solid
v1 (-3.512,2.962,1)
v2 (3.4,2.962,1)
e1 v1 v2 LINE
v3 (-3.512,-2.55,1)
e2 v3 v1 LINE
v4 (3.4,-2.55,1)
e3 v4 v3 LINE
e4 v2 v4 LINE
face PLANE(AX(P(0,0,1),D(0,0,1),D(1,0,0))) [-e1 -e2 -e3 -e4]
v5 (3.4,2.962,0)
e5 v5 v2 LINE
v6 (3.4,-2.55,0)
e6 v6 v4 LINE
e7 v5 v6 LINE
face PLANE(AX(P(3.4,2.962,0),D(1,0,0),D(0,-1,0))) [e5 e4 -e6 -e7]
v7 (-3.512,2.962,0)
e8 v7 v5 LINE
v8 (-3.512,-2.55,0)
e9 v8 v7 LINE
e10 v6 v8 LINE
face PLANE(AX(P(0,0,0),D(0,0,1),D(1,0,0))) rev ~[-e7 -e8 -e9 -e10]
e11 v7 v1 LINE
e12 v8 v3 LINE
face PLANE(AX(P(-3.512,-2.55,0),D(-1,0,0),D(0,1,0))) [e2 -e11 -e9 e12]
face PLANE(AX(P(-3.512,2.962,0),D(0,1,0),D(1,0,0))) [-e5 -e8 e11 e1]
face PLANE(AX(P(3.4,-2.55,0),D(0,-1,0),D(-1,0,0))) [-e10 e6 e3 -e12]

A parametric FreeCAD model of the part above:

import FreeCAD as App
import Part
import Sketcher

V = App.Vector


def add_polygon(sketch, points):
    """Adds a closed chain of lines whose ends are joined by coincident constraints."""
    first, n = sketch.GeometryCount, len(points)
    for a, b in zip(points, points[1:] + points[:1]):
        sketch.addGeometry(Part.LineSegment(App.Vector(*a, 0), App.Vector(*b, 0)), False)
    for i in range(n):
        sketch.addConstraint(Sketcher.Constraint("Coincident", first + i, 2, first + (i + 1) % n, 1))

doc = App.newDocument("Part")
body = doc.addObject("PartDesign::Body", "Body")

# Sketch on XY plane
sketch1 = body.newObject("Sketcher::SketchObject", "Sketch")
sketch1.AttachmentSupport = (doc.getObject("XY_Plane"), [""])
sketch1.MapMode = "FlatFace"
add_polygon(sketch1, [(-3.512, 2.962), (-3.512, -2.55), (3.4, -2.55), (3.4, 2.962)])  # lines 0-3
sketch1.addConstraint([
    Sketcher.Constraint("Vertical", 0),
    Sketcher.Constraint("Horizontal", 1),
    Sketcher.Constraint("Vertical", 2),
    Sketcher.Constraint("Horizontal", 3),
    Sketcher.Constraint("DistanceX", -1, 1, 1, 2, 3.4),
    Sketcher.Constraint("DistanceX", 1, 1, 1, 2, 6.912),
    Sketcher.Constraint("DistanceY", 0, 2, 0, 1, 5.512),
    Sketcher.Constraint("DistanceY", 0, 2, -1, 1, 2.55),
])
pad1 = body.newObject("PartDesign::Pad", "Pad")
pad1.Profile = sketch1
pad1.Length = 1

doc.recompute()
